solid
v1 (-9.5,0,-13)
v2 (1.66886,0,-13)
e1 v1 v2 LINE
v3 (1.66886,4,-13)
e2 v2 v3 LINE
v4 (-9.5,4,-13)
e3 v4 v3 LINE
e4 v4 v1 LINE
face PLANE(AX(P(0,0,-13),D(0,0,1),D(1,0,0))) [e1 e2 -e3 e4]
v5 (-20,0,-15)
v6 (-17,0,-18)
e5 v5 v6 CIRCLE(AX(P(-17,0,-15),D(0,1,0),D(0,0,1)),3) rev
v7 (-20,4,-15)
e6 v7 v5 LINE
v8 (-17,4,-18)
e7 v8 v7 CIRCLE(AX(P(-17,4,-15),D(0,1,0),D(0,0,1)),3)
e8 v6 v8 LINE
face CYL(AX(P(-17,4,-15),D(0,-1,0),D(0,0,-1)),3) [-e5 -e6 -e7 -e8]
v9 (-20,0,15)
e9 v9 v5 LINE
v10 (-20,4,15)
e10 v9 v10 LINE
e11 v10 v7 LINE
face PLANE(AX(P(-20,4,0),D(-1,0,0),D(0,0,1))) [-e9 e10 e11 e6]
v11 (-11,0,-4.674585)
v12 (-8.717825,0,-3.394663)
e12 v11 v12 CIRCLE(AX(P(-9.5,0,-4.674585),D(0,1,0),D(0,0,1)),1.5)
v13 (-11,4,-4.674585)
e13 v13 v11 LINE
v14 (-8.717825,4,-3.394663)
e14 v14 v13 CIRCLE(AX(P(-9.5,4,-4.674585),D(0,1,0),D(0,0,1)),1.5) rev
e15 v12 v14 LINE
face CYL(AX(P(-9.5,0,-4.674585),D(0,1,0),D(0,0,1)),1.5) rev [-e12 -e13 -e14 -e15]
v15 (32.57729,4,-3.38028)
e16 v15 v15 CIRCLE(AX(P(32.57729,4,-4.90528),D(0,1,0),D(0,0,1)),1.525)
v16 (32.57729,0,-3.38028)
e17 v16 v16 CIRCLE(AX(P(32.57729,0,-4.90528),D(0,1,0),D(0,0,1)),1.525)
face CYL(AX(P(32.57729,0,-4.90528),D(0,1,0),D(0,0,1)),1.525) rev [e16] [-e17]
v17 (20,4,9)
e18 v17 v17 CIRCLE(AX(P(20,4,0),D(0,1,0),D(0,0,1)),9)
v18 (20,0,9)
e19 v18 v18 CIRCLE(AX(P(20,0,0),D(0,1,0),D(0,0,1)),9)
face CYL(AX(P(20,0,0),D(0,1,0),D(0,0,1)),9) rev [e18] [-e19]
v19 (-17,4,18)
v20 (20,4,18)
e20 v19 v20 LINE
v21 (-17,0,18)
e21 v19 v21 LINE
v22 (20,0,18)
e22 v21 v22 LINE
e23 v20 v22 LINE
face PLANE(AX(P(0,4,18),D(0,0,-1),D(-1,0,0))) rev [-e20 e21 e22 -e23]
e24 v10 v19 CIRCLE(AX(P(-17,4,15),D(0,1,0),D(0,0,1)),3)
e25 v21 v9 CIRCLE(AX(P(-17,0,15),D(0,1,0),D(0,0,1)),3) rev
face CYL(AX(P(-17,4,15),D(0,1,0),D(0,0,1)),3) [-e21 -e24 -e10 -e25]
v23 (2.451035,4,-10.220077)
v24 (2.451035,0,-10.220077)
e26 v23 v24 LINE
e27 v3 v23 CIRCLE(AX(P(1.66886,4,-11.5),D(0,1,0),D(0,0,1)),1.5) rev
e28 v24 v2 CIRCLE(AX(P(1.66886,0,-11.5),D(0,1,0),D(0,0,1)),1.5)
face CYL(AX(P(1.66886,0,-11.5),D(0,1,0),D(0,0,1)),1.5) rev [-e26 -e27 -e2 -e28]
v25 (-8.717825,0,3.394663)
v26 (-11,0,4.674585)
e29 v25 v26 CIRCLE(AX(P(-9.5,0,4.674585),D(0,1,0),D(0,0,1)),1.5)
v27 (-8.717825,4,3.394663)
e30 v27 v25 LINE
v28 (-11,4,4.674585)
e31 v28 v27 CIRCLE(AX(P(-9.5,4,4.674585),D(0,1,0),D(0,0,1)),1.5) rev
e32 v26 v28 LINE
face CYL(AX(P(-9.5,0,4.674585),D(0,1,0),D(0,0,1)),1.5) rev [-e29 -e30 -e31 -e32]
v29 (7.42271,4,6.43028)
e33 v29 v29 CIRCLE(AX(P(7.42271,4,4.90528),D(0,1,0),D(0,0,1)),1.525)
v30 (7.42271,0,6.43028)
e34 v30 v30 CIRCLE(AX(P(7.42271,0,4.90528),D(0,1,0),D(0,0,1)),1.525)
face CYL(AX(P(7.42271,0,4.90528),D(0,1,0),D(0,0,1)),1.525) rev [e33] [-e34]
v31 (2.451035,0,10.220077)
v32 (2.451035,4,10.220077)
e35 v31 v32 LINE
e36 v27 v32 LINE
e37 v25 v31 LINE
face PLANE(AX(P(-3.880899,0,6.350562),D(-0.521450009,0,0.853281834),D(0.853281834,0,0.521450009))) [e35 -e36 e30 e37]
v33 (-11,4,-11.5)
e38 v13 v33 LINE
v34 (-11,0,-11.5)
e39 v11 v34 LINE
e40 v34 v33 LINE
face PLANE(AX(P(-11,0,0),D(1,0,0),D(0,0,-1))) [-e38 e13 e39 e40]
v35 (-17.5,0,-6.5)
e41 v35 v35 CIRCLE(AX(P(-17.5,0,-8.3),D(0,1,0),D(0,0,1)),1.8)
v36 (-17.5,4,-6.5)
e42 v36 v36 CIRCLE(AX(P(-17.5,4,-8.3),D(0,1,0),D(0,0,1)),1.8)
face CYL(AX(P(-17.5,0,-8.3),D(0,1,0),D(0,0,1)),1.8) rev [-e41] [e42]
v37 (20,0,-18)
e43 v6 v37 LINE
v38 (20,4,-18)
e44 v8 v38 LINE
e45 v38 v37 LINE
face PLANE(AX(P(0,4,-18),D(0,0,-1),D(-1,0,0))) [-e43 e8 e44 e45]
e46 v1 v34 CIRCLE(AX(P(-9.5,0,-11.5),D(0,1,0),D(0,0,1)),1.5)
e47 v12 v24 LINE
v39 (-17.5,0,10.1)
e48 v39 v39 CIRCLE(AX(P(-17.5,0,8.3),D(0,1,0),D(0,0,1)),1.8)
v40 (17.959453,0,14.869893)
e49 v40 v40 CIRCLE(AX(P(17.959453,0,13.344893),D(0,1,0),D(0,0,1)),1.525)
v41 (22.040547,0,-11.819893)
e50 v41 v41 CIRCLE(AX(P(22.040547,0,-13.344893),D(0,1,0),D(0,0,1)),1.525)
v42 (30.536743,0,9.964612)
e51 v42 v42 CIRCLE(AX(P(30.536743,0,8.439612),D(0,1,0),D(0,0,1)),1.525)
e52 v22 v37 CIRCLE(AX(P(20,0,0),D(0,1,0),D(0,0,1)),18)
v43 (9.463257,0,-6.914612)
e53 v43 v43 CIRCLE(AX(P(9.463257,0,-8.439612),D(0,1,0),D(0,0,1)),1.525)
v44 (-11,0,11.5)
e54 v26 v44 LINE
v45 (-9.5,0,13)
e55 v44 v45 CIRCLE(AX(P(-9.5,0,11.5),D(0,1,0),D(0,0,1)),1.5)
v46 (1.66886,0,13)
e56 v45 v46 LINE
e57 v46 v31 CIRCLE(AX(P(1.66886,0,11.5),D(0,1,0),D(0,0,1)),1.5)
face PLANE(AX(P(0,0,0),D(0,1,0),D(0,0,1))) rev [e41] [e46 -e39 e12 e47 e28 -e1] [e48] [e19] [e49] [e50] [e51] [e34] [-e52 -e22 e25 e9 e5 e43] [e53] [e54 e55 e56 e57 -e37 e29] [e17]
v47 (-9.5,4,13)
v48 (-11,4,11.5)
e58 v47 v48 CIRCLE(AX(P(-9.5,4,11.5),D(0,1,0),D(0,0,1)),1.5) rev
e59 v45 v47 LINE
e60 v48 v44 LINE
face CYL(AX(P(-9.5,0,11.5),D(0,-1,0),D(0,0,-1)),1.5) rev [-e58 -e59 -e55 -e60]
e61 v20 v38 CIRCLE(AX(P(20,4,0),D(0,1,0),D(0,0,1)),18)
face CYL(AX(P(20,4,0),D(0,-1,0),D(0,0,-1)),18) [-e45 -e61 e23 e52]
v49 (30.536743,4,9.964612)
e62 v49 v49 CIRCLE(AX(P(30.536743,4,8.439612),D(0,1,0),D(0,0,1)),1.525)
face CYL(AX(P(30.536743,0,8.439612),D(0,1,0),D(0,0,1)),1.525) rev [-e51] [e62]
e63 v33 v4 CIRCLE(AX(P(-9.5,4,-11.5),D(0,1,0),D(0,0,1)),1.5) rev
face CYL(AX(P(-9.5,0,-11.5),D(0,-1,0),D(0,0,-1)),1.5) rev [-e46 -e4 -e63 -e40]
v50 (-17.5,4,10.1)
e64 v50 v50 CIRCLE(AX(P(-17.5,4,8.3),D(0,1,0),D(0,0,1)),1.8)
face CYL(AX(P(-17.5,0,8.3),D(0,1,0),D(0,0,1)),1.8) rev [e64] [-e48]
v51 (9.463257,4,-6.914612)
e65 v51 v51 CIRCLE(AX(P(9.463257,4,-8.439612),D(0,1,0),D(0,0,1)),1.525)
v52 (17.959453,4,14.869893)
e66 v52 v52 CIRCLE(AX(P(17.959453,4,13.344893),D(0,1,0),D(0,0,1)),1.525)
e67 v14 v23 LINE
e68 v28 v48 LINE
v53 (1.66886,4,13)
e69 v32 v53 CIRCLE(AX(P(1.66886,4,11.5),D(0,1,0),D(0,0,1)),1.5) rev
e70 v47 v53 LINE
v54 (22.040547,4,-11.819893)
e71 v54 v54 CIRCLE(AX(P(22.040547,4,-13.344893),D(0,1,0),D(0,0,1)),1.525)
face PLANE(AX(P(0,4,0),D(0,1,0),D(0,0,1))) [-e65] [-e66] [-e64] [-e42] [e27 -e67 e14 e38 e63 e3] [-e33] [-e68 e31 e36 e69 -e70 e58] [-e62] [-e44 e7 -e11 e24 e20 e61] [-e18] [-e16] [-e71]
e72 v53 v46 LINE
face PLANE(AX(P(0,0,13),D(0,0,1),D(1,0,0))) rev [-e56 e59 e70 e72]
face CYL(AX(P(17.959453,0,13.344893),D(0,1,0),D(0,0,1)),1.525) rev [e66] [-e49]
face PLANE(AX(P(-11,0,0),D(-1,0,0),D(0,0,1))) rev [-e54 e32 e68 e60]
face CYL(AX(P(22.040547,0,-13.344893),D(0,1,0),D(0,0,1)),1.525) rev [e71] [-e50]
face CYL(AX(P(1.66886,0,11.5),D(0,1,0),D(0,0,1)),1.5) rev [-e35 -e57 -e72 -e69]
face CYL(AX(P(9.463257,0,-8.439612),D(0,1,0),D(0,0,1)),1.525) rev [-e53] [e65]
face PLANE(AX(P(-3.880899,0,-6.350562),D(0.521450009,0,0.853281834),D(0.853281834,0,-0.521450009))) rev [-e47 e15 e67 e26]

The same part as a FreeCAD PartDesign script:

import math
import FreeCAD as App
import Part
import Sketcher
from FreeCAD import Vector


def edges_at(feature, points):
    """Names of the edges that pass closest to the given points."""
    edges = feature.Shape.Edges
    near = lambda p: min(range(len(edges)), key=lambda i: edges[i].distToShape(Part.Vertex(*p))[0])
    return sorted({f"Edge{near(p) + 1}" for p in points})


def add_polygon(sketch, points):
    """Adds a closed chain of lines whose ends are joined by coincident constraints."""
    first, n = sketch.GeometryCount, len(points)
    for a, b in zip(points, points[1:] + points[:1]):
        sketch.addGeometry(Part.LineSegment(App.Vector(*a, 0), App.Vector(*b, 0)), False)
    for i in range(n):
        sketch.addConstraint(Sketcher.Constraint("Coincident", first + i, 2, first + (i + 1) % n, 1))

doc = App.newDocument("Part")
body = doc.addObject("PartDesign::Body", "Body")

# Sketch on XZ plane
sketch1 = doc.addObject("Sketcher::SketchObject", "Sketch")
body.addObject(sketch1)
sketch1.AttachmentSupport = (doc.XZ_Plane, [""])
sketch1.MapMode = "FlatFace"
sketch1.addGeometry([
    Part.LineSegment(Vector(-20, 18, 0), Vector(20, 18, 0)),  # 0
    Part.ArcOfCircle(Part.Circle(Vector(20, 0, 0), Vector(0, 0, 1), 18), math.radians(0), math.radians(90)),  # 1
    Part.ArcOfCircle(Part.Circle(Vector(20, 0, 0), Vector(0, 0, 1), 18), math.radians(-90), math.radians(0)),  # 2
    Part.LineSegment(Vector(20, -18, 0), Vector(-20, -18, 0)),  # 3
    Part.LineSegment(Vector(-20, -18, 0), Vector(-20, 18, 0)),  # 4
], False)
sketch1.addConstraint([
    Sketcher.Constraint("Tangent", 0, 2, 1, 2),
    Sketcher.Constraint("Tangent", 1, 1, 2, 2),
    Sketcher.Constraint("Tangent", 2, 1, 3, 1),
    Sketcher.Constraint("Coincident", 3, 2, 4, 1),
    Sketcher.Constraint("Coincident", 4, 2, 0, 1),
    Sketcher.Constraint("Horizontal", 0),
    Sketcher.Constraint("Horizontal", 3),
    Sketcher.Constraint("Vertical", 4),
    Sketcher.Constraint("Equal", 1, 2),
    Sketcher.Constraint("Symmetric", 0, 2, 3, 2, -1, 1),
    Sketcher.Constraint("PointOnObject", 1, 1, -1),
    Sketcher.Constraint("Radius", 1, 18.0),
    Sketcher.Constraint("DistanceX", 0, 1, 0, 2, 40.0),
])
pad1 = doc.addObject("PartDesign::Pad", "Pad")
body.addObject(pad1)
pad1.Profile = sketch1
pad1.Length = 4
pad1.Reversed = True

# Sketch on XZ plane
sketch2 = doc.addObject("Sketcher::SketchObject", "Sketch001")
body.addObject(sketch2)
sketch2.AttachmentSupport = (doc.XZ_Plane, [""])
sketch2.MapMode = "FlatFace"
sketch2.AttachmentOffset = App.Placement(Vector(0, 0, -4), App.Rotation())
sketch2.addGeometry([
    Part.Circle(Vector(9.463257, -8.439612, 0), Vector(0, 0, 1), 1.525),  # 0
    Part.Circle(Vector(7.42271, 4.90528, 0), Vector(0, 0, 1), 1.525),  # 1
    Part.Circle(Vector(30.536743, 8.439612, 0), Vector(0, 0, 1), 1.525),  # 2
    Part.Circle(Vector(17.959453, 13.344893, 0), Vector(0, 0, 1), 1.525),  # 3
    Part.Circle(Vector(32.57729, -4.90528, 0), Vector(0, 0, 1), 1.525),  # 4
    Part.Circle(Vector(22.040547, -13.344893, 0), Vector(0, 0, 1), 1.525),  # 5
], False)
sketch2.addConstraint([
    Sketcher.Constraint("Equal", 0, 1),
    Sketcher.Constraint("Equal", 1, 2),
    Sketcher.Constraint("Equal", 2, 3),
    Sketcher.Constraint("Equal", 3, 4),
    Sketcher.Constraint("Equal", 4, 5),
    Sketcher.Constraint("Diameter", 0, 3.05),
    Sketcher.Constraint("DistanceX", -1, 1, 1, 3, 7.42271),
    Sketcher.Constraint("DistanceY", -1, 1, 1, 3, 4.90528),
    Sketcher.Constraint("DistanceX", -1, 1, 4, 3, 32.57729),
    Sketcher.Constraint("DistanceY", 4, 3, -1, 1, 4.90528),
    Sketcher.Constraint("DistanceY", 1, 3, 2, 3, 3.534332),
    Sketcher.Constraint("DistanceX", 3, 3, 2, 3, 12.57729),
    Sketcher.Constraint("DistanceY", 2, 3, 3, 3, 4.90528),
    Sketcher.Constraint("DistanceY", 0, 3, 4, 3, 3.534332),
    Sketcher.Constraint("DistanceX", 0, 3, 5, 3, 12.57729),
    Sketcher.Constraint("DistanceY", 5, 3, 0, 3, 4.90528),
    Sketcher.Constraint("DistanceX", -1, 1, 0, 3, 9.463257),
    Sketcher.Constraint("DistanceX", -1, 1, 2, 3, 30.536743),
])
pocket1 = doc.addObject("PartDesign::Pocket", "Pocket")
body.addObject(pocket1)
pocket1.Profile = sketch2
pocket1.Type = "ThroughAll"
pocket1.Reversed = True
doc.recompute()

fillet = doc.addObject("PartDesign::Fillet", "Fillet")
body.addObject(fillet)
fillet.Base = (pocket1, edges_at(pocket1, [(-20, 2, 18), (-20, 2, -18)]))
fillet.Radius = 3

# Sketch on XZ plane
sketch3 = doc.addObject("Sketcher::SketchObject", "Sketch002")
body.addObject(sketch3)
sketch3.AttachmentSupport = (doc.XZ_Plane, [""])
sketch3.MapMode = "FlatFace"
sketch3.AttachmentOffset = App.Placement(Vector(0, 0, -4), App.Rotation())
sketch3.addGeometry([
    Part.Circle(Vector(-17.5, 8.3, 0), Vector(0, 0, 1), 1.8),
    Part.Circle(Vector(-17.5, -8.3, 0), Vector(0, 0, 1), 1.8),
], False)
sketch3.addConstraint([
    Sketcher.Constraint("Equal", 0, 1),
    Sketcher.Constraint("Symmetric", 0, 3, 1, 3, -1),
    Sketcher.Constraint("Diameter", 0, 3.6),
    Sketcher.Constraint("DistanceX", 0, 3, -1, 1, 17.5),
    Sketcher.Constraint("DistanceY", -1, 1, 0, 3, 8.3),
])
pocket2 = doc.addObject("PartDesign::Pocket", "Pocket001")
body.addObject(pocket2)
pocket2.Profile = sketch3
pocket2.Type = "ThroughAll"
pocket2.Reversed = True

# Sketch on XZ plane
sketch4 = doc.addObject("Sketcher::SketchObject", "Sketch003")
body.addObject(sketch4)
sketch4.AttachmentSupport = (doc.XZ_Plane, [""])
sketch4.MapMode = "FlatFace"
sketch4.AttachmentOffset = App.Placement(Vector(0, 0, -4), App.Rotation())
add_polygon(sketch4, [(-11, -13), (-11, -2), (7, -13)])  # lines 0-2
sketch4.addConstraint([
    Sketcher.Constraint("Vertical", 0),
    Sketcher.Constraint("Horizontal", 2),
    Sketcher.Constraint("DistanceX", 2, 2, 2, 1, 18.0),
    Sketcher.Constraint("DistanceY", 0, 1, 0, 2, 11.0),
    Sketcher.Constraint("DistanceX", 0, 2, -1, 1, 11.0),
    Sketcher.Constraint("DistanceY", 0, 2, -1, 1, 2.0),
])
pocket3 = doc.addObject("PartDesign::Pocket", "Pocket002")
body.addObject(pocket3)
pocket3.Profile = sketch4
pocket3.Type = "ThroughAll"
pocket3.Reversed = True
doc.recompute()

fillet2 = doc.addObject("PartDesign::Fillet", "Fillet001")
body.addObject(fillet2)
fillet2.Base = (pocket3, edges_at(pocket3, [(-11, 2, -2), (-11, 2, -13), (7, 2, -13)]))
fillet2.Radius = 1.5
doc.recompute()

mirrored = doc.addObject("PartDesign::Mirrored", "Mirrored")
body.addObject(mirrored)
mirrored.Originals = [pocket3]
mirrored.MirrorPlane = (doc.XY_Plane, [""])
body.Tip = mirrored
doc.recompute()

fillet3 = doc.addObject("PartDesign::Fillet", "Fillet002")
body.addObject(fillet3)
fillet3.Base = (mirrored, edges_at(mirrored, [(-11, 2, 2), (-11, 2, 13), (7, 2, 13)]))
fillet3.Radius = 1.5

# Sketch on XZ plane
sketch5 = doc.addObject("Sketcher::SketchObject", "Sketch004")
body.addObject(sketch5)
sketch5.AttachmentSupport = (doc.XZ_Plane, [""])
sketch5.MapMode = "FlatFace"
sketch5.AttachmentOffset = App.Placement(Vector(0, 0, -4), App.Rotation())
sketch5.addGeometry(Part.Circle(Vector(20, 0, 0), Vector(0, 0, 1), 9), False)
sketch5.addConstraint([
    Sketcher.Constraint("PointOnObject", 0, 3, -1),
    Sketcher.Constraint("Diameter", 0, 18.0),
    Sketcher.Constraint("DistanceX", -1, 1, 0, 3, 20.0),
])
pocket4 = doc.addObject("PartDesign::Pocket", "Pocket003")
body.addObject(pocket4)
pocket4.Profile = sketch5
pocket4.Type = "ThroughAll"
pocket4.Reversed = True

doc.recompute()
